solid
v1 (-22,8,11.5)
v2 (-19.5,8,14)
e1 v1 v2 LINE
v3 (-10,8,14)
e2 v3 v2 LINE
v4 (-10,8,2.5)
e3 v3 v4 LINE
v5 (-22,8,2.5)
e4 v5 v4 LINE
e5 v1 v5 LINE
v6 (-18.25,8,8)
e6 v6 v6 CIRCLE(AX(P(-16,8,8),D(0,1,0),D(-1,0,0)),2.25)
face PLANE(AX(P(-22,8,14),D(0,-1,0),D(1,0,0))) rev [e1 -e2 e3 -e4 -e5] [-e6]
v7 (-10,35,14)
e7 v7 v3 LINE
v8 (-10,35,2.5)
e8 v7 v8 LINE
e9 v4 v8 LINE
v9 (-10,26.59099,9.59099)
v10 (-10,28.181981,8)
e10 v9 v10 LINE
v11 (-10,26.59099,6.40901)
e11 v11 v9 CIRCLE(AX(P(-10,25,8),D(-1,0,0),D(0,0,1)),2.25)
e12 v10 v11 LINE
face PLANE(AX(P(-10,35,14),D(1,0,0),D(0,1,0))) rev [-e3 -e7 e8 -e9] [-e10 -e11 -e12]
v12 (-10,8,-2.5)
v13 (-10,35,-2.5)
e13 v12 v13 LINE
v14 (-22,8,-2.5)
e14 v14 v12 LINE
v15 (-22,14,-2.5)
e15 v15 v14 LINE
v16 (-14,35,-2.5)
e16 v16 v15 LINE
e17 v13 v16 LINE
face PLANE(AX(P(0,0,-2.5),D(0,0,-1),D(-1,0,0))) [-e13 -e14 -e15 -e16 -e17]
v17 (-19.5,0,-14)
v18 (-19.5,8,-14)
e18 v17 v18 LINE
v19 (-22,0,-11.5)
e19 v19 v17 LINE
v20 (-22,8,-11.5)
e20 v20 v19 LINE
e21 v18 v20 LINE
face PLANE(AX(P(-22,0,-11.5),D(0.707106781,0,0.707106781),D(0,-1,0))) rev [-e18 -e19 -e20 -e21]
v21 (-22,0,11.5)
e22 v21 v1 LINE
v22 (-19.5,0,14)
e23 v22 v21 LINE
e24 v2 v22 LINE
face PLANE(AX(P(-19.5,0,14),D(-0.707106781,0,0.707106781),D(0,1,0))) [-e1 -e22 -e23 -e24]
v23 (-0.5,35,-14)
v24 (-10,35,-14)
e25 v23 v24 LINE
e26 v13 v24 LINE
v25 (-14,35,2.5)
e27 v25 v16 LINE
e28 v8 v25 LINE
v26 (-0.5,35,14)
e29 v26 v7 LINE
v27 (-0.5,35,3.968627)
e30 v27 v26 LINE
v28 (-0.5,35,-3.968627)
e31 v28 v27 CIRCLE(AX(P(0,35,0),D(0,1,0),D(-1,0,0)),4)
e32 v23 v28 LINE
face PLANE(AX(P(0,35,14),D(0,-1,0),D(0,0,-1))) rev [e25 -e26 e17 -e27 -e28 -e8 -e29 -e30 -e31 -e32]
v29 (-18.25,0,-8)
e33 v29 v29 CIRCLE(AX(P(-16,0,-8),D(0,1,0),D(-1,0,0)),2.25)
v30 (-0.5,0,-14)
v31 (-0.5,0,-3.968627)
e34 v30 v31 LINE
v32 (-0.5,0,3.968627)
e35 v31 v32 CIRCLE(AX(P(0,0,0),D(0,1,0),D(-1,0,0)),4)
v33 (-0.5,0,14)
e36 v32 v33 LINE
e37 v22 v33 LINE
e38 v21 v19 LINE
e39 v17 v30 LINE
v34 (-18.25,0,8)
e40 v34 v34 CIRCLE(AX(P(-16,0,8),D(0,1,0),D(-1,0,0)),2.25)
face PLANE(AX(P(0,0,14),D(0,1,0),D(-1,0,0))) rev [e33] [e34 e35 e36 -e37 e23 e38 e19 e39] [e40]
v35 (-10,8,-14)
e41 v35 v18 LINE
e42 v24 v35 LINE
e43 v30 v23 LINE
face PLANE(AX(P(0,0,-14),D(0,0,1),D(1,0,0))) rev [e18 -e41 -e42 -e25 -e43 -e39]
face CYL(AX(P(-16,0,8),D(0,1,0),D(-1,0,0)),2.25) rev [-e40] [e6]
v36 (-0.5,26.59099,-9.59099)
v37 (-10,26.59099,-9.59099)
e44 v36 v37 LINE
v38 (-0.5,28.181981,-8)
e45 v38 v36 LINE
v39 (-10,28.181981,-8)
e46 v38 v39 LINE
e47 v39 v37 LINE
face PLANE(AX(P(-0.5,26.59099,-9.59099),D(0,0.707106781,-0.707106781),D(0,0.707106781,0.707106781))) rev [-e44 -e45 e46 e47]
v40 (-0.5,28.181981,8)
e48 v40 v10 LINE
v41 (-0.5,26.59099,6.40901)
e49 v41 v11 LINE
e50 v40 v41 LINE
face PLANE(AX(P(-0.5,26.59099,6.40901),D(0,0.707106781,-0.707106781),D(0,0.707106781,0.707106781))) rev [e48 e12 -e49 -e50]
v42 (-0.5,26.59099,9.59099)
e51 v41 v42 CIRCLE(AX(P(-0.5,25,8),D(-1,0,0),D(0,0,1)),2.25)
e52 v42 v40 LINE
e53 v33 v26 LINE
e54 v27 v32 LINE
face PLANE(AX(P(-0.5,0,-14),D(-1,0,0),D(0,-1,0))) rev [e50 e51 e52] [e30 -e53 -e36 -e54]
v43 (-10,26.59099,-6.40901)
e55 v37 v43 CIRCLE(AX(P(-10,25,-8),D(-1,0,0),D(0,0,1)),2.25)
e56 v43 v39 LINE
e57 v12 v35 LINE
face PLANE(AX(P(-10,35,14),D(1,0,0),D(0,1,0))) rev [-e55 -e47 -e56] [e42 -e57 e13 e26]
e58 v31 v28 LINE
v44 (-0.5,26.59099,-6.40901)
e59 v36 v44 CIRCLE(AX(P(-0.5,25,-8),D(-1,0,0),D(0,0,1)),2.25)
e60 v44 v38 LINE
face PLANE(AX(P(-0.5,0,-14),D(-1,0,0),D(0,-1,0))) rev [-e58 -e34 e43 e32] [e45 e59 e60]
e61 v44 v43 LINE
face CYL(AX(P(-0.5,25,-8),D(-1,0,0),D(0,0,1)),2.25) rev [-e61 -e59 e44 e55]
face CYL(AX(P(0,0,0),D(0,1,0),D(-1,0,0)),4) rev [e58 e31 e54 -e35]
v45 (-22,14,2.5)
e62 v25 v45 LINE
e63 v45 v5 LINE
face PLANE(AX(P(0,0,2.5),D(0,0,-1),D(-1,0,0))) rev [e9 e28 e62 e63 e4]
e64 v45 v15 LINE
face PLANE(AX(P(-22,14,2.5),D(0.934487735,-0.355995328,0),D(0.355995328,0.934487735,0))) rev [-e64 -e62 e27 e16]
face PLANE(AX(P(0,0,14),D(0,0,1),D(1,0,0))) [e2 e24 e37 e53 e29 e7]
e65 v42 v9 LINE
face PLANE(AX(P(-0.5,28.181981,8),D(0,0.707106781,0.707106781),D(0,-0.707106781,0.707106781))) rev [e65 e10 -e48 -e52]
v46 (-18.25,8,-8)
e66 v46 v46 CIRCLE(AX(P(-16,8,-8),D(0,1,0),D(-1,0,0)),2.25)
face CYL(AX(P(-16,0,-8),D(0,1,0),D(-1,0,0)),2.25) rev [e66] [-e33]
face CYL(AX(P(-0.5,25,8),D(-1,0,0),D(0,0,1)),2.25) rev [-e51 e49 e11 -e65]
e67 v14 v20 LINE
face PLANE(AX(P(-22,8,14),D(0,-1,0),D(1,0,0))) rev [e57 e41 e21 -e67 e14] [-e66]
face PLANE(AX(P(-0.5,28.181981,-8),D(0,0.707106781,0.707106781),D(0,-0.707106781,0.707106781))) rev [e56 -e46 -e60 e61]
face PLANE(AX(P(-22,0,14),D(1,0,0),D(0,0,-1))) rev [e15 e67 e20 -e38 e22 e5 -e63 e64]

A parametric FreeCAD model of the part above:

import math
import FreeCAD as App
import Part
import Sketcher
from FreeCAD import Vector
Q = App.Units.Quantity


def edges_at(feature, points):
    """Names of the edges that pass closest to the given points."""
    edges = feature.Shape.Edges
    near = lambda p: min(range(len(edges)), key=lambda i: edges[i].distToShape(Part.Vertex(*p))[0])
    return sorted({f"Edge{near(p) + 1}" for p in points})


def add_polygon(sketch, points):
    """Adds a closed chain of lines whose ends are joined by coincident constraints."""
    first, n = sketch.GeometryCount, len(points)
    for a, b in zip(points, points[1:] + points[:1]):
        sketch.addGeometry(Part.LineSegment(App.Vector(*a, 0), App.Vector(*b, 0)), False)
    for i in range(n):
        sketch.addConstraint(Sketcher.Constraint("Coincident", first + i, 2, first + (i + 1) % n, 1))

doc = App.newDocument("Part")
params = doc.addObject("Spreadsheet::Sheet", "Params")
for row, (alias, value) in enumerate([
    ("sketch1_width", "22 mm"),
    ("sketch1_width2", "10 mm"),
    ("sketch1_height", "35 mm"),
    ("sketch1_height2", "27 mm"),
    ("pad1_length", "28 mm"),
    ("sketch2_diameter", "8 mm"),
    ("sketch3_height", "28 mm"),
    ("sketch3_width", "0.5 mm"),
    ("sketch4_diameter", "4.5 mm"),
    ("sketch5_radius", "2.25 mm"),
    ("chamfer_size", "2.5 mm"),
    ("sketch6_width", "12 mm"),
    ("sketch6_width2", "4 mm"),
    ("sketch6_height", "6 mm"),
    ("sketch6_height2", "27 mm"),
    ("pad2_length", "5 mm"),
], start=1):
    params.set(f"A{row}", alias)
    params.set(f"B{row}", "=" + value)
    params.setAlias(f"B{row}", alias)

body = doc.addObject("PartDesign::Body", "Body")

# Sketch on XY plane
sketch1 = body.newObject("Sketcher::SketchObject", "Sketch")
sketch1.AttachmentSupport = (doc.getObject("XY_Plane"), [""])
sketch1.MapMode = "FlatFace"
add_polygon(sketch1, [(-22, 0), (0, 0), (0, 35), (-10, 35), (-10, 8), (-22, 8)])  # lines 0-5
sketch1.addConstraint([
    Sketcher.Constraint("Horizontal", 0),
    Sketcher.Constraint("Vertical", 1),
    Sketcher.Constraint("Horizontal", 2),
    Sketcher.Constraint("Vertical", 3),
    Sketcher.Constraint("Horizontal", 4),
    Sketcher.Constraint("Vertical", 5),
    Sketcher.Constraint("Coincident", 0, 2, -1, 1),
    Sketcher.Constraint("DistanceX", 0, 1, 0, 2, Q("22 mm")),
    Sketcher.Constraint("DistanceX", 2, 2, 2, 1, Q("10 mm")),
    Sketcher.Constraint("DistanceY", 1, 1, 1, 2, Q("35 mm")),
    Sketcher.Constraint("DistanceY", 3, 2, 3, 1, Q("27 mm")),
])
sketch1.setExpression("Constraints[13]", "Params.sketch1_width")
sketch1.setExpression("Constraints[14]", "Params.sketch1_width2")
sketch1.setExpression("Constraints[15]", "Params.sketch1_height")
sketch1.setExpression("Constraints[16]", "Params.sketch1_height2")
pad1 = body.newObject("PartDesign::Pad", "Pad")
pad1.Profile = sketch1
pad1.setExpression("Length", "Params.pad1_length")
pad1.Midplane = True

# Sketch on XZ plane
sketch2 = body.newObject("Sketcher::SketchObject", "Sketch001")
sketch2.AttachmentSupport = (doc.getObject("XZ_Plane"), [""])
sketch2.MapMode = "FlatFace"
sketch2.AttachmentOffset = App.Placement(Vector(0, 0, -35), App.Rotation())
sketch2.addGeometry(Part.Circle(Vector(0, 0, 0), Vector(0, 0, 1), 4), False)
sketch2.addConstraint([
    Sketcher.Constraint("Coincident", 0, 3, -1, 1),
    Sketcher.Constraint("Diameter", 0, Q("8 mm")),
])
sketch2.setExpression("Constraints[1]", "Params.sketch2_diameter")
pocket1 = body.newObject("PartDesign::Pocket", "Pocket")
pocket1.Profile = sketch2
pocket1.Type = "ThroughAll"
pocket1.Reversed = True

# Sketch on XZ plane
sketch3 = body.newObject("Sketcher::SketchObject", "Sketch002")
sketch3.AttachmentSupport = (doc.getObject("XZ_Plane"), [""])
sketch3.MapMode = "FlatFace"
sketch3.AttachmentOffset = App.Placement(Vector(0, 0, -35), App.Rotation())
add_polygon(sketch3, [(-0.5, -14), (-0.5, 14), (0, 14), (0, -14)])  # lines 0-3
sketch3.addConstraint([
    Sketcher.Constraint("Vertical", 0),
    Sketcher.Constraint("Horizontal", 1),
    Sketcher.Constraint("Vertical", 2),
    Sketcher.Constraint("Horizontal", 3),
    Sketcher.Constraint("Symmetric", 1, 2, 2, 2, -1, 1),
    Sketcher.Constraint("DistanceY", 0, 1, 0, 2, Q("28 mm")),
    Sketcher.Constraint("DistanceX", 1, 1, 1, 2, Q("0.5 mm")),
])
sketch3.setExpression("Constraints[9]", "Params.sketch3_height")
sketch3.setExpression("Constraints[10]", "Params.sketch3_width")
pocket2 = body.newObject("PartDesign::Pocket", "Pocket001")
pocket2.Profile = sketch3
pocket2.Type = "ThroughAll"
pocket2.Reversed = True

# Sketch on XZ plane
sketch4 = body.newObject("Sketcher::SketchObject", "Sketch003")
sketch4.AttachmentSupport = (doc.getObject("XZ_Plane"), [""])
sketch4.MapMode = "FlatFace"
sketch4.AttachmentOffset = App.Placement(Vector(0, 0, -8), App.Rotation())
sketch4.addGeometry([
    Part.Circle(Vector(-16, -8, 0), Vector(0, 0, 1), 2.2),
    Part.Circle(Vector(-16, 8, 0), Vector(0, 0, 1), 2.2),
], False)
sketch4.addConstraint([
    Sketcher.Constraint("Equal", 0, 1),
    Sketcher.Constraint("Symmetric", 0, 3, 1, 3, -1),
    Sketcher.Constraint("Diameter", 0, Q("4.5 mm")),
    Sketcher.Constraint("DistanceX", 0, 3, -1, 1, Q("16 mm")),
    Sketcher.Constraint("DistanceY", 0, 3, -1, 1, Q("8 mm")),
])
sketch4.setExpression("Constraints[2]", "Params.sketch4_diameter")
pocket3 = body.newObject("PartDesign::Pocket", "Pocket002")
pocket3.Profile = sketch4
pocket3.Type = "ThroughAll"
pocket3.Reversed = True

# Sketch on YZ plane
sketch5 = body.newObject("Sketcher::SketchObject", "Sketch004")
sketch5.AttachmentSupport = (doc.getObject("YZ_Plane"), [""])
sketch5.MapMode = "FlatFace"
sketch5.AttachmentOffset = App.Placement(Vector(0, 0, -10), App.Rotation())
sketch5.addGeometry([
    Part.LineSegment(Vector(28.2, 8, 0), Vector(26.6, 6.4, 0)),  # 0
    Part.ArcOfCircle(Part.Circle(Vector(25, 8, 0), Vector(0, 0, 1), 2.2), math.radians(45), math.radians(315)),  # 1
    Part.LineSegment(Vector(26.6, 9.6, 0), Vector(28.2, 8, 0)),  # 2
    Part.LineSegment(Vector(28.2, -8, 0), Vector(26.6, -9.6, 0)),  # 3
    Part.ArcOfCircle(Part.Circle(Vector(25, -8, 0), Vector(0, 0, 1), 2.2), math.radians(45), math.radians(315)),  # 4
    Part.LineSegment(Vector(26.6, -6.4, 0), Vector(28.2, -8, 0)),  # 5
], False)
sketch5.addConstraint([
    Sketcher.Constraint("Tangent", 0, 2, 1, 2),
    Sketcher.Constraint("Tangent", 1, 1, 2, 1),
    Sketcher.Constraint("Coincident", 2, 2, 0, 1),
    Sketcher.Constraint("Tangent", 3, 2, 4, 2),
    Sketcher.Constraint("Tangent", 4, 1, 5, 1),
    Sketcher.Constraint("Coincident", 5, 2, 3, 1),
    Sketcher.Constraint("Equal", 1, 4),
    Sketcher.Constraint("Symmetric", 1, 3, 4, 3, -1),
    Sketcher.Constraint("Symmetric", 2, 2, 5, 2, -1),
    Sketcher.Constraint("Perpendicular", 0, 2),
    Sketcher.Constraint("Perpendicular", 2, 3),
    Sketcher.Constraint("Radius", 1, Q("2.25 mm")),
    Sketcher.Constraint("DistanceX", -1, 1, 1, 3, Q("25 mm")),
    Sketcher.Constraint("DistanceY", -1, 1, 1, 3, Q("8 mm")),
])
sketch5.setExpression("Constraints[11]", "Params.sketch5_radius")
pocket4 = body.newObject("PartDesign::Pocket", "Pocket003")
pocket4.Profile = sketch5
pocket4.Type = "ThroughAll"
pocket4.Reversed = True
doc.recompute()

chamfer = body.newObject("PartDesign::Chamfer", "Chamfer")
chamfer.Base = (pocket4, edges_at(pocket4, [(-22, 4, 14), (-22, 4, -14)]))
chamfer.setExpression("Size", "Params.chamfer_size")

# Sketch on XY plane
sketch6 = body.newObject("Sketcher::SketchObject", "Sketch005")
sketch6.AttachmentSupport = (doc.getObject("XY_Plane"), [""])
sketch6.MapMode = "FlatFace"
add_polygon(sketch6, [(-22, 14), (-22, 8), (-10, 8), (-10, 35), (-14, 35)])  # lines 0-4
sketch6.addConstraint([
    Sketcher.Constraint("Vertical", 0),
    Sketcher.Constraint("Horizontal", 1),
    Sketcher.Constraint("Vertical", 2),
    Sketcher.Constraint("Horizontal", 3),
    Sketcher.Constraint("DistanceX", 1, 1, 1, 2, Q("12 mm")),
    Sketcher.Constraint("DistanceX", 3, 2, 3, 1, Q("4 mm")),
    Sketcher.Constraint("DistanceY", 0, 2, 0, 1, Q("6 mm")),
    Sketcher.Constraint("DistanceY", 2, 1, 2, 2, Q("27 mm")),
    Sketcher.Constraint("DistanceX", 0, 2, -1, 1, Q("22 mm")),
    Sketcher.Constraint("DistanceY", -1, 1, 0, 2, Q("8 mm")),
])
sketch6.setExpression("Constraints[9]", "Params.sketch6_width")
sketch6.setExpression("Constraints[10]", "Params.sketch6_width2")
sketch6.setExpression("Constraints[11]", "Params.sketch6_height")
sketch6.setExpression("Constraints[12]", "Params.sketch6_height2")
pad2 = body.newObject("PartDesign::Pad", "Pad001")
pad2.Profile = sketch6
pad2.setExpression("Length", "Params.pad2_length")
pad2.Midplane = True

doc.recompute()
